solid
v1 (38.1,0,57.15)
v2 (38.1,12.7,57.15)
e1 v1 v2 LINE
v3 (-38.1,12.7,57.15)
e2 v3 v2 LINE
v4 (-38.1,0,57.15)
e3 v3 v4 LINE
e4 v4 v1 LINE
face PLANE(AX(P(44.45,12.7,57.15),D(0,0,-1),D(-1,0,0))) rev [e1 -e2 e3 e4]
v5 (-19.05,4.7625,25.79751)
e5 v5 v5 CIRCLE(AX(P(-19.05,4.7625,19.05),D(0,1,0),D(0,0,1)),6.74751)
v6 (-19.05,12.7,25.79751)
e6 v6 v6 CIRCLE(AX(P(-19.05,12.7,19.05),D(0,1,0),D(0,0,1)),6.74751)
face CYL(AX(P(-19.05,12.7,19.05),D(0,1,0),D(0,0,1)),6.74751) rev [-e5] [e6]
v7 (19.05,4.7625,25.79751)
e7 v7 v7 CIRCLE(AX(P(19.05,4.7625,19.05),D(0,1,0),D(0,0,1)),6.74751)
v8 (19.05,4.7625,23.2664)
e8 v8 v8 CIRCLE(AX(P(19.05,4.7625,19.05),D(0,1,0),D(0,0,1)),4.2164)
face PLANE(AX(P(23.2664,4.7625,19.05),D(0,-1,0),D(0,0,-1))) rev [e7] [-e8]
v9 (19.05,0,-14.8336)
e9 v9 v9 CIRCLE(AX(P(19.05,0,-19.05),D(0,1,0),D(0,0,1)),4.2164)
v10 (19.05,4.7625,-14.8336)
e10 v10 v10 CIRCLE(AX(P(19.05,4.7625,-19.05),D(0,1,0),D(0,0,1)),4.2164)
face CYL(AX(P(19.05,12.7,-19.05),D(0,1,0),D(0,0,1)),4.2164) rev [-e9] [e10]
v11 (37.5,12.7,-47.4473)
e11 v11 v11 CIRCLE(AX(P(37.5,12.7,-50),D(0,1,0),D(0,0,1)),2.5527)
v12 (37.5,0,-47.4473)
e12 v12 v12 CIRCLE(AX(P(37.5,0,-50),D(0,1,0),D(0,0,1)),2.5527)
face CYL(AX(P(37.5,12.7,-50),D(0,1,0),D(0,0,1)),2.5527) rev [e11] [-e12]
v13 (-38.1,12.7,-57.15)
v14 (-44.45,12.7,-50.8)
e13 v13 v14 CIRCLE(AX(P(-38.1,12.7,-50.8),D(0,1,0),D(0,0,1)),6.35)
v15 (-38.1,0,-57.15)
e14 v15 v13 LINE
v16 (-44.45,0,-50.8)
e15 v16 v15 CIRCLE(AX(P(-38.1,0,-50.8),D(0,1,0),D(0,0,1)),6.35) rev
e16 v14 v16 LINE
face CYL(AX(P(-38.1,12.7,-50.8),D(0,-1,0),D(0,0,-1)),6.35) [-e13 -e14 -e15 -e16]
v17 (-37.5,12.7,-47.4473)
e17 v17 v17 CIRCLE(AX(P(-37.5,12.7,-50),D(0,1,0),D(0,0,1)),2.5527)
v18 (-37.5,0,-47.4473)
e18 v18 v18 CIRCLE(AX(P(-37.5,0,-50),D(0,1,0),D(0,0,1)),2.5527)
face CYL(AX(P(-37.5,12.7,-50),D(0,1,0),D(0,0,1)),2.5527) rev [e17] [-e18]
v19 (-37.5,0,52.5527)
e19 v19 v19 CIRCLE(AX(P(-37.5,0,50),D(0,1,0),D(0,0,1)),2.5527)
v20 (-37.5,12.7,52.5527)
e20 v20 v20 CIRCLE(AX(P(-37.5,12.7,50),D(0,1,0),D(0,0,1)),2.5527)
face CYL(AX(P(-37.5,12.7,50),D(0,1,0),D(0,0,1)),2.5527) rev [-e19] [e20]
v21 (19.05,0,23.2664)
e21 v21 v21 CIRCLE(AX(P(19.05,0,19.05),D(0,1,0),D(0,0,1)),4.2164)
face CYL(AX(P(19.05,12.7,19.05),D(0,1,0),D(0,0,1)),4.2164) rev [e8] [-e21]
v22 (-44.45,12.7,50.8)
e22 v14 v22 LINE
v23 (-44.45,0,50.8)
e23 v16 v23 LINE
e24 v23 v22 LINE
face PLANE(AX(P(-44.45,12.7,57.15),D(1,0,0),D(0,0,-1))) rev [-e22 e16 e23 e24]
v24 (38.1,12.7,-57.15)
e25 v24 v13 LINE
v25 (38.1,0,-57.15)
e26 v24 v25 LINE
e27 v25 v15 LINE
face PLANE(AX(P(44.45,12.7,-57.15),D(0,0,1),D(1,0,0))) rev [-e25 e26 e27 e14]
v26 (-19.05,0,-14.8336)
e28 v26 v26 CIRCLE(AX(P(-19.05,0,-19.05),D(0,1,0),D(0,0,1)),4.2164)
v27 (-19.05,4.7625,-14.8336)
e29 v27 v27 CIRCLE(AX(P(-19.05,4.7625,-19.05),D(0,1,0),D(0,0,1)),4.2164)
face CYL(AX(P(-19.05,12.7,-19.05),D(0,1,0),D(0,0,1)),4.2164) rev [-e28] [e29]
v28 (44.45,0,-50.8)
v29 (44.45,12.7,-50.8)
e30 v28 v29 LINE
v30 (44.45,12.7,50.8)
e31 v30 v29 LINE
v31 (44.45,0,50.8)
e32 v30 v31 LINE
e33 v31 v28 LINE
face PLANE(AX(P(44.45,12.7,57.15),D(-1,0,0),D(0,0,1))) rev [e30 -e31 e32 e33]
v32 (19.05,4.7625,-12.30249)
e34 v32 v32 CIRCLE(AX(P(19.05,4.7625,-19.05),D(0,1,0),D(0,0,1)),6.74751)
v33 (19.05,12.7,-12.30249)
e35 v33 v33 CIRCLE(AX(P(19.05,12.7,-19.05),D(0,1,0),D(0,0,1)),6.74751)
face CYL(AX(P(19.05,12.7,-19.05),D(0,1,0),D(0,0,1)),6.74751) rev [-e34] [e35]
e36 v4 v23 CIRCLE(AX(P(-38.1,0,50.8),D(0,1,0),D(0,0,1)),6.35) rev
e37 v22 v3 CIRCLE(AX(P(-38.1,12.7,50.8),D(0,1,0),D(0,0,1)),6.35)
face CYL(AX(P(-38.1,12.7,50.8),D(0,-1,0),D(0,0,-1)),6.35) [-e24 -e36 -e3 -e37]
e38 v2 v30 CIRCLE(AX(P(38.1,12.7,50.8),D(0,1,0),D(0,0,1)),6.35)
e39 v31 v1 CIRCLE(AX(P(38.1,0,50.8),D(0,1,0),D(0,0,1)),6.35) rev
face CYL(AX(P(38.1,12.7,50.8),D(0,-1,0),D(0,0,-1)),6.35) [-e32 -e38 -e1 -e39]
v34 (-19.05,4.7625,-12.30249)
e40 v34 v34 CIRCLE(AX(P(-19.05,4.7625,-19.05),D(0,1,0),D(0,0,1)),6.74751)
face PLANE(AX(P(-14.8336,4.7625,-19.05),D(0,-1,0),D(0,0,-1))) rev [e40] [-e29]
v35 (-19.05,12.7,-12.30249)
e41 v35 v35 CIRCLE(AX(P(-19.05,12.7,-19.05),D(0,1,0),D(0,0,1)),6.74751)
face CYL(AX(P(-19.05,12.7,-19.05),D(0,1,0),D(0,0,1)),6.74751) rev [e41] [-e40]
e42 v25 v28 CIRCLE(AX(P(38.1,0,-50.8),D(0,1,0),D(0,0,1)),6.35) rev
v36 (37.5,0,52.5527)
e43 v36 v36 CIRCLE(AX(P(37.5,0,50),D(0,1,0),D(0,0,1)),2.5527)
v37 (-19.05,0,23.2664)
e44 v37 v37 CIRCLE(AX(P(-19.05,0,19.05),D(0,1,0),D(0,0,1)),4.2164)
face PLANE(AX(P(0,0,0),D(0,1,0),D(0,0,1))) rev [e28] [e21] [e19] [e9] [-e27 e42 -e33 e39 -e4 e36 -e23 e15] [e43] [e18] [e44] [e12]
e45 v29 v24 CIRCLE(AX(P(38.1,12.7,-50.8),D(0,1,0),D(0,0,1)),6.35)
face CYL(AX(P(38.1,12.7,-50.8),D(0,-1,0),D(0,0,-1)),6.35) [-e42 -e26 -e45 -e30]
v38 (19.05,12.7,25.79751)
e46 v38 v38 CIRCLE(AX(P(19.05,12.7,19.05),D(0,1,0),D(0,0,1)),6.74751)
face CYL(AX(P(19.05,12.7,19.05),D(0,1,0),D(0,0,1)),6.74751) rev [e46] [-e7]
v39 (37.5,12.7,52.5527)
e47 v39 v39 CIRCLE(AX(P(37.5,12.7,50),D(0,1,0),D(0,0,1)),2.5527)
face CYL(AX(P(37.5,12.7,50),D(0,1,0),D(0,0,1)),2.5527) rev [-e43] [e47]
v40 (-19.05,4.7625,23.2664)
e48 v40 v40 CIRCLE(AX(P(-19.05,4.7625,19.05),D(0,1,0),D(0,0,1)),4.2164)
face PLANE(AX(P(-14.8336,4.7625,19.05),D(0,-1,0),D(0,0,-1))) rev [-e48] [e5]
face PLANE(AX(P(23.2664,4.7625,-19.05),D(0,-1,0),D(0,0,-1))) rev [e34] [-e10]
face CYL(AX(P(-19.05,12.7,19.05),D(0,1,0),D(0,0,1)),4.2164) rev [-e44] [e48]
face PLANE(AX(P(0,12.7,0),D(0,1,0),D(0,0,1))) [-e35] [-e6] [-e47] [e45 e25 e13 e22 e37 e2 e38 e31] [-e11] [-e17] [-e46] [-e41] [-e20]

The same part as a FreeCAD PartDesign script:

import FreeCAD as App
import Part
import Sketcher
from FreeCAD import Vector
Q = App.Units.Quantity


def edges_at(feature, points):
    """Names of the edges that pass closest to the given points."""
    edges = feature.Shape.Edges
    near = lambda p: min(range(len(edges)), key=lambda i: edges[i].distToShape(Part.Vertex(*p))[0])
    return sorted({f"Edge{near(p) + 1}" for p in points})


def add_polygon(sketch, points):
    """Adds a closed chain of lines whose ends are joined by coincident constraints."""
    first, n = sketch.GeometryCount, len(points)
    for a, b in zip(points, points[1:] + points[:1]):
        sketch.addGeometry(Part.LineSegment(App.Vector(*a, 0), App.Vector(*b, 0)), False)
    for i in range(n):
        sketch.addConstraint(Sketcher.Constraint("Coincident", first + i, 2, first + (i + 1) % n, 1))

doc = App.newDocument("Part")
body = doc.addObject("PartDesign::Body", "Body")

# Sketch on XZ plane
sketch1 = body.newObject("Sketcher::SketchObject", "Sketch")
sketch1.AttachmentSupport = (doc.getObject("XZ_Plane"), [""])
sketch1.MapMode = "FlatFace"
add_polygon(sketch1, [(-44.45, -57.15), (-44.45, 57.15), (44.45, 57.15), (44.45, -57.15)])  # lines 0-3
sketch1.addConstraint(Sketcher.Constraint("Vertical", 0))
sketch1.addConstraint(Sketcher.Constraint("Horizontal", 1))
sketch1.addConstraint(Sketcher.Constraint("Vertical", 2))
sketch1.addConstraint(Sketcher.Constraint("Horizontal", 3))
sketch1.addConstraint(Sketcher.Constraint("Symmetric", 0, 2, 2, 2, -1, 1))
sketch1.addConstraint(Sketcher.Constraint("DistanceX", 1, 1, 1, 2, Q("3.5 in")))
sketch1.addConstraint(Sketcher.Constraint("DistanceY", 0, 1, 0, 2, Q("4.5 in")))
pad1 = body.newObject("PartDesign::Pad", "Pad")
pad1.Profile = sketch1
pad1.Length = Q("0.5 in")
pad1.Reversed = True
doc.recompute()

fillet = body.newObject("PartDesign::Fillet", "Fillet")
fillet.Base = (pad1, edges_at(pad1, [
    (-44.45, 6.35, -57.15),
    (44.45, 6.35, -57.15),
    (44.45, 6.35, 57.15),
    (-44.45, 6.35, 57.15),
]))
fillet.Radius = Q("0.25 in")

# Sketch on XZ plane
sketch2 = body.newObject("Sketcher::SketchObject", "Sketch001")
sketch2.AttachmentSupport = (doc.getObject("XZ_Plane"), [""])
sketch2.MapMode = "FlatFace"
sketch2.AttachmentOffset = App.Placement(Vector(0, 0, -0.5 * 25.4), App.Rotation())
sketch2.addGeometry(Part.Circle(Vector(-19.05, -19.05, 0), Vector(0, 0, 1), 4.2164), False)
sketch2.addGeometry(Part.Circle(Vector(-19.05, 19.05, 0), Vector(0, 0, 1), 4.2164), False)
sketch2.addGeometry(Part.Circle(Vector(19.05, 19.05, 0), Vector(0, 0, 1), 4.2164), False)
sketch2.addGeometry(Part.Circle(Vector(19.05, -19.05, 0), Vector(0, 0, 1), 4.2164), False)
sketch2.addConstraint(Sketcher.Constraint("Equal", 0, 1))
sketch2.addConstraint(Sketcher.Constraint("Equal", 1, 2))
sketch2.addConstraint(Sketcher.Constraint("Equal", 2, 3))
sketch2.addConstraint(Sketcher.Constraint("Symmetric", 0, 3, 2, 3, -1, 1))
sketch2.addConstraint(Sketcher.Constraint("Symmetric", 1, 3, 3, 3, -1, 1))
sketch2.addConstraint(Sketcher.Constraint("Symmetric", 1, 3, 2, 3, -2))
sketch2.addConstraint(Sketcher.Constraint("Diameter", 0, Q("0.332 in")))
sketch2.addConstraint(Sketcher.Constraint("DistanceY", 0, 3, 1, 3, Q("1.5 in")))
sketch2.addConstraint(Sketcher.Constraint("DistanceX", 1, 3, 2, 3, Q("1.5 in")))
doc.recompute()
hole = body.newObject("PartDesign::Hole", "Hole")
hole.Profile = sketch2
hole.ThreadType = "None"
hole.Diameter = Q("0.332 in")
hole.DepthType = "ThroughAll"
hole.HoleCutType = "Counterbore"
hole.HoleCutDiameter = Q("0.5313 in")
hole.HoleCutDepth = Q("0.3125 in")
hole.Reversed = True

# Sketch on XZ plane
sketch3 = body.newObject("Sketcher::SketchObject", "Sketch002")
sketch3.AttachmentSupport = (doc.getObject("XZ_Plane"), [""])
sketch3.MapMode = "FlatFace"
sketch3.AttachmentOffset = App.Placement(Vector(0, 0, -0.5 * 25.4), App.Rotation())
sketch3.addGeometry(Part.Circle(Vector(-37.5, -50, 0), Vector(0, 0, 1), 2.5527), False)
sketch3.addGeometry(Part.Circle(Vector(37.5, -50, 0), Vector(0, 0, 1), 2.5527), False)
sketch3.addGeometry(Part.Circle(Vector(37.5, 50, 0), Vector(0, 0, 1), 2.5527), False)
sketch3.addGeometry(Part.Circle(Vector(-37.5, 50, 0), Vector(0, 0, 1), 2.5527), False)
sketch3.addConstraint(Sketcher.Constraint("Equal", 0, 1))
sketch3.addConstraint(Sketcher.Constraint("Equal", 1, 2))
sketch3.addConstraint(Sketcher.Constraint("Equal", 2, 3))
sketch3.addConstraint(Sketcher.Constraint("Symmetric", 0, 3, 2, 3, -1, 1))
sketch3.addConstraint(Sketcher.Constraint("Symmetric", 1, 3, 3, 3, -1, 1))
sketch3.addConstraint(Sketcher.Constraint("Symmetric", 0, 3, 1, 3, -2))
sketch3.addConstraint(Sketcher.Constraint("Diameter", 0, Q("0.201 in")))
sketch3.addConstraint(Sketcher.Constraint("DistanceX", 0, 3, -1, 1, 37.5))
sketch3.addConstraint(Sketcher.Constraint("DistanceY", 0, 3, -1, 1, 50.0))
doc.recompute()
hole2 = body.newObject("PartDesign::Hole", "Hole001")
hole2.Profile = sketch3
hole2.ThreadType = "None"
hole2.Diameter = Q("0.201 in")
hole2.DepthType = "ThroughAll"
hole2.Reversed = True

doc.recompute()
